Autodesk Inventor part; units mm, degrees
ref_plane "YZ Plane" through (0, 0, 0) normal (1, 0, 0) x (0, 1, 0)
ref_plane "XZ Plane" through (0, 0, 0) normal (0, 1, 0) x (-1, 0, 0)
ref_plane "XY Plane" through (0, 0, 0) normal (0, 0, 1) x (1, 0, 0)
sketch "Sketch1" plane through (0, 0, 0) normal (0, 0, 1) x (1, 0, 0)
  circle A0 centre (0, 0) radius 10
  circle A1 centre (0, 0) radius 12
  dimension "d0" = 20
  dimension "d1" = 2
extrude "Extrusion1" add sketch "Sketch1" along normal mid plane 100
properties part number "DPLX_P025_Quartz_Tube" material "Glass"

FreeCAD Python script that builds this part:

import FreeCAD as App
import Part
import Sketcher
from FreeCAD import Vector
Q = App.Units.Quantity

doc = App.newDocument("Part")
body = doc.addObject("PartDesign::Body", "Body")

sketch1 = body.newObject("Sketcher::SketchObject", "Sketch")
sketch1.AttachmentSupport = (doc.getObject("XY_Plane"), [""])
sketch1.MapMode = "FlatFace"
sketch1.addGeometry([
    Part.Circle(Vector(0, 0, 0), Vector(0, 0, 1), 12),
    Part.Circle(Vector(0, 0, 0), Vector(0, 0, 1), 10),
], False)
sketch1.addConstraint([
    Sketcher.Constraint("Coincident", 0, 3, -1, 1),
    Sketcher.Constraint("Coincident", 1, 3, -1, 1),
    Sketcher.Constraint("Diameter", 1, Q("20 mm")),
    Sketcher.Constraint("Diameter", 0, Q("24 mm")),
])
pad1 = body.newObject("PartDesign::Pad", "Pad")
pad1.Profile = sketch1
pad1.Length = 100
pad1.Midplane = True

doc.recompute()
